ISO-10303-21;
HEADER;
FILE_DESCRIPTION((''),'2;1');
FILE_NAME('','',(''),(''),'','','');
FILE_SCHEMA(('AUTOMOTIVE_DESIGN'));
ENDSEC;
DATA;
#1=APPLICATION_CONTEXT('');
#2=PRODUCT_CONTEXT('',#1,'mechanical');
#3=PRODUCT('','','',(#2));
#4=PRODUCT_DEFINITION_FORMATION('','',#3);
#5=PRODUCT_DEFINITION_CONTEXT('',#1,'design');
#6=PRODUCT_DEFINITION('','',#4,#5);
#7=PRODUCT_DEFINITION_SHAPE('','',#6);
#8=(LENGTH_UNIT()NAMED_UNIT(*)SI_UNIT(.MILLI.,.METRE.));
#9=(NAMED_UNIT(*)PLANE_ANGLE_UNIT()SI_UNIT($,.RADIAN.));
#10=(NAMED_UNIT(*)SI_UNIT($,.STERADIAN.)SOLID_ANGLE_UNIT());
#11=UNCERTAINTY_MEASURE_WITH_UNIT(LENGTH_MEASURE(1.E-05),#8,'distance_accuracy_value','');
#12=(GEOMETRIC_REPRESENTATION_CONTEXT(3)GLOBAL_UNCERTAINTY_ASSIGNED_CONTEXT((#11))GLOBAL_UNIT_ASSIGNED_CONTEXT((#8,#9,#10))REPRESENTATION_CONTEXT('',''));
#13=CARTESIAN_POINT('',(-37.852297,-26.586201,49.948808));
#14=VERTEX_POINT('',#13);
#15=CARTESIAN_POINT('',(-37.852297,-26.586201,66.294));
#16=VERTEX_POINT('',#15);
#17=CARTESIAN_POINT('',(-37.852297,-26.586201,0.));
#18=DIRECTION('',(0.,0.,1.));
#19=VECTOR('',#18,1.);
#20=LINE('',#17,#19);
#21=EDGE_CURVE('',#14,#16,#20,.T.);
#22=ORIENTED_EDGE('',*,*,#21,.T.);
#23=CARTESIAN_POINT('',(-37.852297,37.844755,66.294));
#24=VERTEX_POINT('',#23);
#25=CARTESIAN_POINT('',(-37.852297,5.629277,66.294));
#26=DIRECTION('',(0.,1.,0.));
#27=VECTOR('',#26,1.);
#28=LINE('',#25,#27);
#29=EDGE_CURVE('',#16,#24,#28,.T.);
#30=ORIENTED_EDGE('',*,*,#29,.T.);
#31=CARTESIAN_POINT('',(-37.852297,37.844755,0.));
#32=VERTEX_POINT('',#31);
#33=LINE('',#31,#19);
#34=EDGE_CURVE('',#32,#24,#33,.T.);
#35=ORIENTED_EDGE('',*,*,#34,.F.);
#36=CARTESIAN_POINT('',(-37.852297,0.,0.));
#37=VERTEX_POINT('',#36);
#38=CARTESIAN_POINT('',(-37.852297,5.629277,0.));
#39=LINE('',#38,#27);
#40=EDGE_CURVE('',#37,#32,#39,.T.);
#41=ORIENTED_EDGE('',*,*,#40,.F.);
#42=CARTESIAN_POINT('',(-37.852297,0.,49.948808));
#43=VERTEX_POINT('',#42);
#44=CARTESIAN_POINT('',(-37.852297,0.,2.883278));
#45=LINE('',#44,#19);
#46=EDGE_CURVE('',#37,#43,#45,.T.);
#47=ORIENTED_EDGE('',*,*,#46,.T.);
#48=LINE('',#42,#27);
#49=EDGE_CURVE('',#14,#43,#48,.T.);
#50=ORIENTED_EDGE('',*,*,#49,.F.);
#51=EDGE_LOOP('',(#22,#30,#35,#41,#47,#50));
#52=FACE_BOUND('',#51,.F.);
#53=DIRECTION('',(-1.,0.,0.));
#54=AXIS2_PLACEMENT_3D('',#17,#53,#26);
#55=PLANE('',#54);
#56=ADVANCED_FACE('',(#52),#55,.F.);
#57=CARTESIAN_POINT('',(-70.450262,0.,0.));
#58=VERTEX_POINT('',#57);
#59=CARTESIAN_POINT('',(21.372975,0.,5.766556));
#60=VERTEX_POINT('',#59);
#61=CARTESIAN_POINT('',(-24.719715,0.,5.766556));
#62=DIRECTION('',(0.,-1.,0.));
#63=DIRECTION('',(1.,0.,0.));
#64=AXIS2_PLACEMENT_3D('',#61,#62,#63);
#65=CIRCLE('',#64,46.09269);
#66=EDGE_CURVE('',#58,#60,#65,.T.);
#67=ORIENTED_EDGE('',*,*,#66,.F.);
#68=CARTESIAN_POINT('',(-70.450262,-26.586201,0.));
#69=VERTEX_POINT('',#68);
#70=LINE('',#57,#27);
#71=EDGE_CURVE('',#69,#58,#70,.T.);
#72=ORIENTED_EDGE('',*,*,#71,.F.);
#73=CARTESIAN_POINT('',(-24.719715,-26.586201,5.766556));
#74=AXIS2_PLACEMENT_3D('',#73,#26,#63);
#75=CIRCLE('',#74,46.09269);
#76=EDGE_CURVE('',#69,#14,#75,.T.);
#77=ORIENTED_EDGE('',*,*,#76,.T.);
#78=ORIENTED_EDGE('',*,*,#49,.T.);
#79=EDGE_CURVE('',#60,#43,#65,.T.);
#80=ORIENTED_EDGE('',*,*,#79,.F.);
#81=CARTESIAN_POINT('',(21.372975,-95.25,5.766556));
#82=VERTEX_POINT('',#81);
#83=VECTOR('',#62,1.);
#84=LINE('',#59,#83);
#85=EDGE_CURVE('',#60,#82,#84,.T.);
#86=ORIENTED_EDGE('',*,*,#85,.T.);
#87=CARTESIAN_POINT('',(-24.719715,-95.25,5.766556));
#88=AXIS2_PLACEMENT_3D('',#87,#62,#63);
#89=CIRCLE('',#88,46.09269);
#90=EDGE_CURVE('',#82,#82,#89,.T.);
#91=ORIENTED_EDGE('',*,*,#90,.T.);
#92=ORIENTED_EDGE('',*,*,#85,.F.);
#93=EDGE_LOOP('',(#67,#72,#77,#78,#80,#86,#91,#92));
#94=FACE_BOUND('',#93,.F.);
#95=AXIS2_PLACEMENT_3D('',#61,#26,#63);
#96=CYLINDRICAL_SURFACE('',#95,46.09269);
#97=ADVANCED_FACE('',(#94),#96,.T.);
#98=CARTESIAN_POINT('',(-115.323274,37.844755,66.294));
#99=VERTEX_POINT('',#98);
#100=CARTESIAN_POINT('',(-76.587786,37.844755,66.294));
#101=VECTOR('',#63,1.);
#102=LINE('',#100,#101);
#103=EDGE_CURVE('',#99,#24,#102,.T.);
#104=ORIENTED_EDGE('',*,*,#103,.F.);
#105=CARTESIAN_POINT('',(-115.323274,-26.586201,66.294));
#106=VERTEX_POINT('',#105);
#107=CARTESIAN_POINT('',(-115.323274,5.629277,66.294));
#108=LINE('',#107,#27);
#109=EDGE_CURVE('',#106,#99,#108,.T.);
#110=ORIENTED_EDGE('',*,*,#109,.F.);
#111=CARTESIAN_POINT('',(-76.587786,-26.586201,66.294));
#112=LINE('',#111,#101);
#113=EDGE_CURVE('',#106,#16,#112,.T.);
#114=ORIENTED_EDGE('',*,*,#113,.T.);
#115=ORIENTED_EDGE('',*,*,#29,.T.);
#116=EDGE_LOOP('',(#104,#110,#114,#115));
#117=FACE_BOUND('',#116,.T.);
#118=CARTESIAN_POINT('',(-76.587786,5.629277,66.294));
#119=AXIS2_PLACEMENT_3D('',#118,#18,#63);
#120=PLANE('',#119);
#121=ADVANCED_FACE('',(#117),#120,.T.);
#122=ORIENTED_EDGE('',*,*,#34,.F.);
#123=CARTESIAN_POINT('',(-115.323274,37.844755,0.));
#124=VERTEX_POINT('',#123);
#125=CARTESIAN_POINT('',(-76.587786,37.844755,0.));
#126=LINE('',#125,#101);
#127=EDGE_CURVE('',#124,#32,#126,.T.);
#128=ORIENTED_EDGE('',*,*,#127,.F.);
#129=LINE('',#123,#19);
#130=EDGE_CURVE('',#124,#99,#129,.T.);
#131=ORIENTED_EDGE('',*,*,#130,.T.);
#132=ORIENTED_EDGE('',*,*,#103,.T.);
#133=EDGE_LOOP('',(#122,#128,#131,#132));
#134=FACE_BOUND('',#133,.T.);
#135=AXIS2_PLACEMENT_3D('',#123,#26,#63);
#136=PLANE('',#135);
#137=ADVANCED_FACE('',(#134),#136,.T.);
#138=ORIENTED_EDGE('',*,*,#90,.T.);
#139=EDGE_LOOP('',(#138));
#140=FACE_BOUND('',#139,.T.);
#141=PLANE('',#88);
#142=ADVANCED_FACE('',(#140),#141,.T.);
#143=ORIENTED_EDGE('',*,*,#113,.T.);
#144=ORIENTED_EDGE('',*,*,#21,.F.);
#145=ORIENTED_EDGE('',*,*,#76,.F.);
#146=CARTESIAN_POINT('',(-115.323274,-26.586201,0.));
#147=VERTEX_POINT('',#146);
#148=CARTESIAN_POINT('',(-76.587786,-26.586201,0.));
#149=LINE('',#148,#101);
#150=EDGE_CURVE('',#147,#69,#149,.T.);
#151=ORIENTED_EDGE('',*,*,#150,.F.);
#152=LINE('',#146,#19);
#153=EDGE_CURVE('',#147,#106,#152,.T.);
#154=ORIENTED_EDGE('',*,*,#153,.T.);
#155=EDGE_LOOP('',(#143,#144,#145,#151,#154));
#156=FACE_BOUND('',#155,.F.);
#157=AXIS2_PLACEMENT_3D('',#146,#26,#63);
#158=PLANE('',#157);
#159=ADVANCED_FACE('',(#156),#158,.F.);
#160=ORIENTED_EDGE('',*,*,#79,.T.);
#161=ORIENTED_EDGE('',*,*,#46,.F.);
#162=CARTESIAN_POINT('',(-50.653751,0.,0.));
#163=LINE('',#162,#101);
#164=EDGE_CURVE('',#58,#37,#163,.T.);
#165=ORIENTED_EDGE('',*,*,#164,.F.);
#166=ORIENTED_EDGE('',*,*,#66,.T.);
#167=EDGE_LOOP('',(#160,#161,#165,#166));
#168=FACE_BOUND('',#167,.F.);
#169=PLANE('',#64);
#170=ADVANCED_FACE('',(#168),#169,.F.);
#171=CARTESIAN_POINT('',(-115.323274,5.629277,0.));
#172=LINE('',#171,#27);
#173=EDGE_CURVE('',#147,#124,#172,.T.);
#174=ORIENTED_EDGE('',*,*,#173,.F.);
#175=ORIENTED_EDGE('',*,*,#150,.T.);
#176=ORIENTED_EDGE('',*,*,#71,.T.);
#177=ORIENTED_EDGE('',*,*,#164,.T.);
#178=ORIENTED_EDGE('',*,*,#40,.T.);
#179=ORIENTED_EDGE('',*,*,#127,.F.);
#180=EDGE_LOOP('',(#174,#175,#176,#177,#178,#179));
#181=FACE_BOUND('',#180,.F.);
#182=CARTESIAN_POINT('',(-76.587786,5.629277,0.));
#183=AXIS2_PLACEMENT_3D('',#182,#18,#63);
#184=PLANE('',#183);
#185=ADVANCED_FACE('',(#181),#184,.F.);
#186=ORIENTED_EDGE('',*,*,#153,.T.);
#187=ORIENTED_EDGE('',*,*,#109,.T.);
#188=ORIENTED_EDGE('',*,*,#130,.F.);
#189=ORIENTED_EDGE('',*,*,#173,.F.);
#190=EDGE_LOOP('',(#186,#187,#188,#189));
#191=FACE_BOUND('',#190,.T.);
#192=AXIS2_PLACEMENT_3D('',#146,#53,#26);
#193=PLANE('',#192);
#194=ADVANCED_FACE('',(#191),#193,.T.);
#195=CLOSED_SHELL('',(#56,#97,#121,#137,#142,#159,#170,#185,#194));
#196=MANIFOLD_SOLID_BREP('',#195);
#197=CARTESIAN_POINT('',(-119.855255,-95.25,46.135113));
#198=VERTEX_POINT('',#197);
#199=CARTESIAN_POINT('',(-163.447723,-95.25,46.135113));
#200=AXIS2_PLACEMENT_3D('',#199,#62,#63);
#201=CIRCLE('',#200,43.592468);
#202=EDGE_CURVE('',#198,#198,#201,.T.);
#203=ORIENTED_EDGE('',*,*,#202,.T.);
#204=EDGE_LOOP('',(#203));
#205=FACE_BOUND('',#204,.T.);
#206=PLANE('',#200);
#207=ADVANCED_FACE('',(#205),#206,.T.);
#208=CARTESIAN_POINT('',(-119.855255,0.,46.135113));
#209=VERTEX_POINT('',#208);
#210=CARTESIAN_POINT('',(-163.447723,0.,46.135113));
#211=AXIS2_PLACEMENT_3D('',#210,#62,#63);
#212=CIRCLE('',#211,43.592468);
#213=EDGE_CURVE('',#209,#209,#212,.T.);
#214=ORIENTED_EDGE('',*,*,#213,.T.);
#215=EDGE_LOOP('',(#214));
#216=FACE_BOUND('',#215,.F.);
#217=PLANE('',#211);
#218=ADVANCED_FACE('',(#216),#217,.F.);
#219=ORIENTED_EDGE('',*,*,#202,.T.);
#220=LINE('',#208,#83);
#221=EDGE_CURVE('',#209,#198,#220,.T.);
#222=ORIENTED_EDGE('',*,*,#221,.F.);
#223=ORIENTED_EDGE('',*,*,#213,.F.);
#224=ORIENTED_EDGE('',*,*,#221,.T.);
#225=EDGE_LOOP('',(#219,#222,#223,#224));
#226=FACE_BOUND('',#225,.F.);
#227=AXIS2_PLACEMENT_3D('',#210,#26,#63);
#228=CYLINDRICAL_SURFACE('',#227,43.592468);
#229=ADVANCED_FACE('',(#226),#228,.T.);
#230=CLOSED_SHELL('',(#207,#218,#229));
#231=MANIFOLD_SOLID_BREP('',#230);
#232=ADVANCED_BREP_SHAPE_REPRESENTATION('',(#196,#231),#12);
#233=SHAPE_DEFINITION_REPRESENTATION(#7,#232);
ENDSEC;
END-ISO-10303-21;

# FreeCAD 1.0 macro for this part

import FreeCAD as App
import Part
import Sketcher

V = App.Vector
Q = App.Units.Quantity


def add_polygon(sketch, points):
    """Adds a closed chain of lines whose ends are joined by coincident constraints."""
    first, n = sketch.GeometryCount, len(points)
    for a, b in zip(points, points[1:] + points[:1]):
        sketch.addGeometry(Part.LineSegment(App.Vector(*a, 0), App.Vector(*b, 0)), False)
    for i in range(n):
        sketch.addConstraint(Sketcher.Constraint("Coincident", first + i, 2, first + (i + 1) % n, 1))

doc = App.newDocument("Part")
body = doc.addObject("PartDesign::Body", "Body")
body.AllowCompound = True

sketch1 = body.newObject("Sketcher::SketchObject", "Sketch")
sketch1.AttachmentSupport = (doc.getObject("XY_Plane"), [""])
sketch1.MapMode = "FlatFace"
add_polygon(sketch1, [(-115.323274, 37.844755), (-115.323274, -26.586201), (-37.852297, -26.586201), (-37.852297, 37.844755)])
sketch1.addConstraint(Sketcher.Constraint("Vertical", 0))
sketch1.addConstraint(Sketcher.Constraint("Horizontal", 1))
sketch1.addConstraint(Sketcher.Constraint("Vertical", 2))
sketch1.addConstraint(Sketcher.Constraint("Horizontal", 3))
sketch1.addConstraint(Sketcher.Constraint("DistanceY", 0, 2, -1, 1, 26.586201))
sketch1.addConstraint(Sketcher.Constraint("DistanceX", 1, 1, 1, 2, 77.470977))
sketch1.addConstraint(Sketcher.Constraint("DistanceY", 0, 2, 0, 1, 64.430956))
sketch1.addConstraint(Sketcher.Constraint("DistanceX", 0, 2, -1, 1, 115.323274))
pad1 = body.newObject("PartDesign::Pad", "Pad")
pad1.Profile = sketch1
pad1.Length = Q("2.61 in")

sketch2 = body.newObject("Sketcher::SketchObject", "Sketch001")
sketch2.AttachmentSupport = (doc.getObject("XZ_Plane"), [""])
sketch2.MapMode = "FlatFace"
sketch2.addGeometry(Part.Circle(V(-24.719715, 5.766556, 0), V(0, 0, 1), 46.09269), False)
sketch2.addGeometry(Part.Circle(V(-163.447723, 46.135113, 0), V(0, 0, 1), 43.592468), False)
sketch2.addConstraint(Sketcher.Constraint("Diameter", 0, 92.18538))
sketch2.addConstraint(Sketcher.Constraint("Diameter", 1, 87.184936))
sketch2.addConstraint(Sketcher.Constraint("DistanceX", 0, 3, -1, 1, 24.719715))
sketch2.addConstraint(Sketcher.Constraint("DistanceY", -1, 1, 0, 3, 5.766556))
sketch2.addConstraint(Sketcher.Constraint("DistanceX", 1, 3, -1, 1, 163.447723))
sketch2.addConstraint(Sketcher.Constraint("DistanceY", -1, 1, 1, 3, 46.135113))
pad2 = body.newObject("PartDesign::Pad", "Pad001")
pad2.Profile = sketch2
pad2.Length = Q("3.75 in")

doc.recompute()
